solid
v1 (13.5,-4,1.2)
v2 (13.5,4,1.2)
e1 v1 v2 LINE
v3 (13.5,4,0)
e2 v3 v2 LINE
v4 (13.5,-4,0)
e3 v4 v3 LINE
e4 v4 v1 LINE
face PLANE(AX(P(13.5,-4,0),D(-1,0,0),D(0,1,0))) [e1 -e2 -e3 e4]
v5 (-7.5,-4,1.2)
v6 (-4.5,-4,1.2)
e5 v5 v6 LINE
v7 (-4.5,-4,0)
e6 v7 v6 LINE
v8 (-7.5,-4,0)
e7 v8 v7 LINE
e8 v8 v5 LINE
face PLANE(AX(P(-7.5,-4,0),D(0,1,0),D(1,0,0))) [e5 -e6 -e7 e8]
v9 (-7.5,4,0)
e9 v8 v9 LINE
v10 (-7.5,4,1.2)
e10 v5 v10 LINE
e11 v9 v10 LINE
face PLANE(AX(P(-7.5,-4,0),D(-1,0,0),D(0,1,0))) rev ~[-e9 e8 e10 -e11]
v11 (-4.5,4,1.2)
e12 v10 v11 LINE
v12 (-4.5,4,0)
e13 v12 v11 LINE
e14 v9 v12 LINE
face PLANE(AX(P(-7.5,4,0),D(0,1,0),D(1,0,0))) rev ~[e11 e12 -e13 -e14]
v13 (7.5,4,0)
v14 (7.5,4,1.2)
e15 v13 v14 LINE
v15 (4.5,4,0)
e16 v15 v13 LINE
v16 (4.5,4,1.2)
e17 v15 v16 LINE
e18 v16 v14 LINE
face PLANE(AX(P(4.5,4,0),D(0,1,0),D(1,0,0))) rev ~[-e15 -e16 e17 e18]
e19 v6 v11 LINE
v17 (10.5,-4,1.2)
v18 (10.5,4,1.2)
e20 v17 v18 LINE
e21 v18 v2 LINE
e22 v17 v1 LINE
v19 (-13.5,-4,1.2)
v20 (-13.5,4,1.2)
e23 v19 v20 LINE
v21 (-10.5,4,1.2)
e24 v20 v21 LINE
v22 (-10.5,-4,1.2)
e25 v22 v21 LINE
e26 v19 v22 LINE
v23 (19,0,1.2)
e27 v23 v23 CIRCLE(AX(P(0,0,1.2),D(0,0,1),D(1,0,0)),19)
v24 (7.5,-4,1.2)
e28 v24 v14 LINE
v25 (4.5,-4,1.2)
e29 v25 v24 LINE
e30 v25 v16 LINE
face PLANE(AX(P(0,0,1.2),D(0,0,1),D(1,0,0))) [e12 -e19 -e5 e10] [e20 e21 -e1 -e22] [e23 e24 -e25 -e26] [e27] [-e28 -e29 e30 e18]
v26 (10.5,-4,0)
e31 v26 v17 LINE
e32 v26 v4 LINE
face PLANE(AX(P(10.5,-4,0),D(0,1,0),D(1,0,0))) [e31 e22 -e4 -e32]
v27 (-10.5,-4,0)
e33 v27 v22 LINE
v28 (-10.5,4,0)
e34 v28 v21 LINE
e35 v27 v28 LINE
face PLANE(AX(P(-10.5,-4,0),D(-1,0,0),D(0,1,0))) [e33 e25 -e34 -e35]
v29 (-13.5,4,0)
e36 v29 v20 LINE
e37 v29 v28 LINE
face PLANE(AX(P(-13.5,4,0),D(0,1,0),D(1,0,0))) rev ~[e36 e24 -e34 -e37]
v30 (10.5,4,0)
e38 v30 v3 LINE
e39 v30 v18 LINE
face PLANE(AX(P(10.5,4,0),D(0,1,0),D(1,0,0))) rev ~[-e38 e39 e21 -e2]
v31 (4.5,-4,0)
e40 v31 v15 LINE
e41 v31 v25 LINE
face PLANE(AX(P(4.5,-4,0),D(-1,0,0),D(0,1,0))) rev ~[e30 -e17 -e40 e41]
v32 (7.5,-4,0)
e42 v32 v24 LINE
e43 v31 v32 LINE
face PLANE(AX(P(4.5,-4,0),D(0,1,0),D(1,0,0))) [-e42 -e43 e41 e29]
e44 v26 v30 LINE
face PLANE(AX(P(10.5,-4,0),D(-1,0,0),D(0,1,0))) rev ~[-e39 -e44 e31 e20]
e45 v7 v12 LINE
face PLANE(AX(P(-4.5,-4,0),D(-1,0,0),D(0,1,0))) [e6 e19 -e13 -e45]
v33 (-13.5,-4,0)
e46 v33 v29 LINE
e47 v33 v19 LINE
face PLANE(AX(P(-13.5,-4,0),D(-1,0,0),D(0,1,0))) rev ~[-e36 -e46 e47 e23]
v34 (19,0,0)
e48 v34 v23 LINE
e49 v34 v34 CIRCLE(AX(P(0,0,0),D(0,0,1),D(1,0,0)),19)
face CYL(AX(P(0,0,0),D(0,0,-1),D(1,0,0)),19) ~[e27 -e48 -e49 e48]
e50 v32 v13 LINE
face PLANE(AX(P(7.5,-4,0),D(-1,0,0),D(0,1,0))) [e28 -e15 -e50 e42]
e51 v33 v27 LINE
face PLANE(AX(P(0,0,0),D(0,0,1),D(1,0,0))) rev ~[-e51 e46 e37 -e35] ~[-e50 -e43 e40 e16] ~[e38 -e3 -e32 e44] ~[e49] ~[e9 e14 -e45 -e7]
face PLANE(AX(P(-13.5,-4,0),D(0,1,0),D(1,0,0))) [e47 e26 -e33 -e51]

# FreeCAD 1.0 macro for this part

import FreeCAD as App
import Part
import Sketcher
Q = App.Units.Quantity

doc = App.newDocument("Part")
body = doc.addObject("PartDesign::Body", "Body")

sketch1 = doc.addObject("Sketcher::SketchObject", "Sketch")
body.addObject(sketch1)
sketch1.AttachmentSupport = (doc.XY_Plane, [""])
sketch1.MapMode = "FlatFace"
sketch1.addGeometry(Part.Circle(App.Vector(0, 0, 0), App.Vector(0, 0, 1), 19), False)
sketch1.addGeometry(Part.LineSegment(App.Vector(-10.5, -4, 0), App.Vector(-13.5, -4, 0)), False)
sketch1.addGeometry(Part.LineSegment(App.Vector(-13.5, -4, 0), App.Vector(-13.5, 4, 0)), False)
sketch1.addGeometry(Part.LineSegment(App.Vector(-13.5, 4, 0), App.Vector(-10.5, 4, 0)), False)
sketch1.addGeometry(Part.LineSegment(App.Vector(-10.5, 4, 0), App.Vector(-10.5, -4, 0)), False)
sketch1.addGeometry(Part.LineSegment(App.Vector(-4.5, -4, 0), App.Vector(-7.5, -4, 0)), False)
sketch1.addGeometry(Part.LineSegment(App.Vector(-7.5, -4, 0), App.Vector(-7.5, 4, 0)), False)
sketch1.addGeometry(Part.LineSegment(App.Vector(-7.5, 4, 0), App.Vector(-4.5, 4, 0)), False)
sketch1.addGeometry(Part.LineSegment(App.Vector(-4.5, 4, 0), App.Vector(-4.5, -4, 0)), False)
sketch1.addGeometry(Part.LineSegment(App.Vector(7.5, -4, 0), App.Vector(4.5, -4, 0)), False)
sketch1.addGeometry(Part.LineSegment(App.Vector(4.5, -4, 0), App.Vector(4.5, 4, 0)), False)
sketch1.addGeometry(Part.LineSegment(App.Vector(4.5, 4, 0), App.Vector(7.5, 4, 0)), False)
sketch1.addGeometry(Part.LineSegment(App.Vector(7.5, 4, 0), App.Vector(7.5, -4, 0)), False)
sketch1.addGeometry(Part.LineSegment(App.Vector(13.5, -4, 0), App.Vector(10.5, -4, 0)), False)
sketch1.addGeometry(Part.LineSegment(App.Vector(10.5, -4, 0), App.Vector(10.5, 4, 0)), False)
sketch1.addGeometry(Part.LineSegment(App.Vector(10.5, 4, 0), App.Vector(13.5, 4, 0)), False)
sketch1.addGeometry(Part.LineSegment(App.Vector(13.5, 4, 0), App.Vector(13.5, -4, 0)), False)
sketch1.addConstraint(Sketcher.Constraint("Coincident", 1, 2, 2, 1))
sketch1.addConstraint(Sketcher.Constraint("Coincident", 2, 2, 3, 1))
sketch1.addConstraint(Sketcher.Constraint("Coincident", 3, 2, 4, 1))
sketch1.addConstraint(Sketcher.Constraint("Coincident", 4, 2, 1, 1))
sketch1.addConstraint(Sketcher.Constraint("Coincident", 5, 2, 6, 1))
sketch1.addConstraint(Sketcher.Constraint("Coincident", 6, 2, 7, 1))
sketch1.addConstraint(Sketcher.Constraint("Coincident", 7, 2, 8, 1))
sketch1.addConstraint(Sketcher.Constraint("Coincident", 8, 2, 5, 1))
sketch1.addConstraint(Sketcher.Constraint("Coincident", 9, 2, 10, 1))
sketch1.addConstraint(Sketcher.Constraint("Coincident", 10, 2, 11, 1))
sketch1.addConstraint(Sketcher.Constraint("Coincident", 11, 2, 12, 1))
sketch1.addConstraint(Sketcher.Constraint("Coincident", 12, 2, 9, 1))
sketch1.addConstraint(Sketcher.Constraint("Coincident", 13, 2, 14, 1))
sketch1.addConstraint(Sketcher.Constraint("Coincident", 14, 2, 15, 1))
sketch1.addConstraint(Sketcher.Constraint("Coincident", 15, 2, 16, 1))
sketch1.addConstraint(Sketcher.Constraint("Coincident", 16, 2, 13, 1))
sketch1.addConstraint(Sketcher.Constraint("Horizontal", 1))
sketch1.addConstraint(Sketcher.Constraint("Vertical", 2))
sketch1.addConstraint(Sketcher.Constraint("Horizontal", 3))
sketch1.addConstraint(Sketcher.Constraint("Vertical", 4))
sketch1.addConstraint(Sketcher.Constraint("Horizontal", 5))
sketch1.addConstraint(Sketcher.Constraint("Vertical", 6))
sketch1.addConstraint(Sketcher.Constraint("Horizontal", 7))
sketch1.addConstraint(Sketcher.Constraint("Vertical", 8))
sketch1.addConstraint(Sketcher.Constraint("Horizontal", 9))
sketch1.addConstraint(Sketcher.Constraint("Vertical", 10))
sketch1.addConstraint(Sketcher.Constraint("Horizontal", 11))
sketch1.addConstraint(Sketcher.Constraint("Vertical", 12))
sketch1.addConstraint(Sketcher.Constraint("Horizontal", 13))
sketch1.addConstraint(Sketcher.Constraint("Vertical", 14))
sketch1.addConstraint(Sketcher.Constraint("Horizontal", 15))
sketch1.addConstraint(Sketcher.Constraint("Vertical", 16))
sketch1.addConstraint(Sketcher.Constraint("Coincident", 0, 3, -1, 1))
sketch1.addConstraint(Sketcher.Constraint("Symmetric", 7, 2, 9, 2, -1, 1))
sketch1.addConstraint(Sketcher.Constraint("Symmetric", 5, 2, 11, 2, -1, 1))
sketch1.addConstraint(Sketcher.Constraint("Symmetric", 3, 2, 13, 2, -1, 1))
sketch1.addConstraint(Sketcher.Constraint("Symmetric", 1, 2, 15, 2, -1, 1))
sketch1.addConstraint(Sketcher.Constraint("Horizontal", 4, 2, 5, 2))
sketch1.addConstraint(Sketcher.Constraint("Horizontal", 3, 2, 6, 2))
sketch1.addConstraint(Sketcher.Constraint("Horizontal", 8, 2, 9, 2))
sketch1.addConstraint(Sketcher.Constraint("Equal", 3, 5))
sketch1.addConstraint(Sketcher.Constraint("Diameter", 0, Q("38 mm")))
sketch1.addConstraint(Sketcher.Constraint("DistanceX", 1, 2, 1, 1, Q("3 mm")))
sketch1.addConstraint(Sketcher.Constraint("DistanceY", 2, 1, 2, 2, Q("8 mm")))
sketch1.addConstraint(Sketcher.Constraint("DistanceX", 4, 2, 5, 2, Q("3 mm")))
sketch1.addConstraint(Sketcher.Constraint("DistanceX", 8, 2, 9, 2, Q("9 mm")))
pad1 = doc.addObject("PartDesign::Pad", "Pad")
body.addObject(pad1)
pad1.Profile = sketch1
pad1.Length = 1.2

doc.recompute()
